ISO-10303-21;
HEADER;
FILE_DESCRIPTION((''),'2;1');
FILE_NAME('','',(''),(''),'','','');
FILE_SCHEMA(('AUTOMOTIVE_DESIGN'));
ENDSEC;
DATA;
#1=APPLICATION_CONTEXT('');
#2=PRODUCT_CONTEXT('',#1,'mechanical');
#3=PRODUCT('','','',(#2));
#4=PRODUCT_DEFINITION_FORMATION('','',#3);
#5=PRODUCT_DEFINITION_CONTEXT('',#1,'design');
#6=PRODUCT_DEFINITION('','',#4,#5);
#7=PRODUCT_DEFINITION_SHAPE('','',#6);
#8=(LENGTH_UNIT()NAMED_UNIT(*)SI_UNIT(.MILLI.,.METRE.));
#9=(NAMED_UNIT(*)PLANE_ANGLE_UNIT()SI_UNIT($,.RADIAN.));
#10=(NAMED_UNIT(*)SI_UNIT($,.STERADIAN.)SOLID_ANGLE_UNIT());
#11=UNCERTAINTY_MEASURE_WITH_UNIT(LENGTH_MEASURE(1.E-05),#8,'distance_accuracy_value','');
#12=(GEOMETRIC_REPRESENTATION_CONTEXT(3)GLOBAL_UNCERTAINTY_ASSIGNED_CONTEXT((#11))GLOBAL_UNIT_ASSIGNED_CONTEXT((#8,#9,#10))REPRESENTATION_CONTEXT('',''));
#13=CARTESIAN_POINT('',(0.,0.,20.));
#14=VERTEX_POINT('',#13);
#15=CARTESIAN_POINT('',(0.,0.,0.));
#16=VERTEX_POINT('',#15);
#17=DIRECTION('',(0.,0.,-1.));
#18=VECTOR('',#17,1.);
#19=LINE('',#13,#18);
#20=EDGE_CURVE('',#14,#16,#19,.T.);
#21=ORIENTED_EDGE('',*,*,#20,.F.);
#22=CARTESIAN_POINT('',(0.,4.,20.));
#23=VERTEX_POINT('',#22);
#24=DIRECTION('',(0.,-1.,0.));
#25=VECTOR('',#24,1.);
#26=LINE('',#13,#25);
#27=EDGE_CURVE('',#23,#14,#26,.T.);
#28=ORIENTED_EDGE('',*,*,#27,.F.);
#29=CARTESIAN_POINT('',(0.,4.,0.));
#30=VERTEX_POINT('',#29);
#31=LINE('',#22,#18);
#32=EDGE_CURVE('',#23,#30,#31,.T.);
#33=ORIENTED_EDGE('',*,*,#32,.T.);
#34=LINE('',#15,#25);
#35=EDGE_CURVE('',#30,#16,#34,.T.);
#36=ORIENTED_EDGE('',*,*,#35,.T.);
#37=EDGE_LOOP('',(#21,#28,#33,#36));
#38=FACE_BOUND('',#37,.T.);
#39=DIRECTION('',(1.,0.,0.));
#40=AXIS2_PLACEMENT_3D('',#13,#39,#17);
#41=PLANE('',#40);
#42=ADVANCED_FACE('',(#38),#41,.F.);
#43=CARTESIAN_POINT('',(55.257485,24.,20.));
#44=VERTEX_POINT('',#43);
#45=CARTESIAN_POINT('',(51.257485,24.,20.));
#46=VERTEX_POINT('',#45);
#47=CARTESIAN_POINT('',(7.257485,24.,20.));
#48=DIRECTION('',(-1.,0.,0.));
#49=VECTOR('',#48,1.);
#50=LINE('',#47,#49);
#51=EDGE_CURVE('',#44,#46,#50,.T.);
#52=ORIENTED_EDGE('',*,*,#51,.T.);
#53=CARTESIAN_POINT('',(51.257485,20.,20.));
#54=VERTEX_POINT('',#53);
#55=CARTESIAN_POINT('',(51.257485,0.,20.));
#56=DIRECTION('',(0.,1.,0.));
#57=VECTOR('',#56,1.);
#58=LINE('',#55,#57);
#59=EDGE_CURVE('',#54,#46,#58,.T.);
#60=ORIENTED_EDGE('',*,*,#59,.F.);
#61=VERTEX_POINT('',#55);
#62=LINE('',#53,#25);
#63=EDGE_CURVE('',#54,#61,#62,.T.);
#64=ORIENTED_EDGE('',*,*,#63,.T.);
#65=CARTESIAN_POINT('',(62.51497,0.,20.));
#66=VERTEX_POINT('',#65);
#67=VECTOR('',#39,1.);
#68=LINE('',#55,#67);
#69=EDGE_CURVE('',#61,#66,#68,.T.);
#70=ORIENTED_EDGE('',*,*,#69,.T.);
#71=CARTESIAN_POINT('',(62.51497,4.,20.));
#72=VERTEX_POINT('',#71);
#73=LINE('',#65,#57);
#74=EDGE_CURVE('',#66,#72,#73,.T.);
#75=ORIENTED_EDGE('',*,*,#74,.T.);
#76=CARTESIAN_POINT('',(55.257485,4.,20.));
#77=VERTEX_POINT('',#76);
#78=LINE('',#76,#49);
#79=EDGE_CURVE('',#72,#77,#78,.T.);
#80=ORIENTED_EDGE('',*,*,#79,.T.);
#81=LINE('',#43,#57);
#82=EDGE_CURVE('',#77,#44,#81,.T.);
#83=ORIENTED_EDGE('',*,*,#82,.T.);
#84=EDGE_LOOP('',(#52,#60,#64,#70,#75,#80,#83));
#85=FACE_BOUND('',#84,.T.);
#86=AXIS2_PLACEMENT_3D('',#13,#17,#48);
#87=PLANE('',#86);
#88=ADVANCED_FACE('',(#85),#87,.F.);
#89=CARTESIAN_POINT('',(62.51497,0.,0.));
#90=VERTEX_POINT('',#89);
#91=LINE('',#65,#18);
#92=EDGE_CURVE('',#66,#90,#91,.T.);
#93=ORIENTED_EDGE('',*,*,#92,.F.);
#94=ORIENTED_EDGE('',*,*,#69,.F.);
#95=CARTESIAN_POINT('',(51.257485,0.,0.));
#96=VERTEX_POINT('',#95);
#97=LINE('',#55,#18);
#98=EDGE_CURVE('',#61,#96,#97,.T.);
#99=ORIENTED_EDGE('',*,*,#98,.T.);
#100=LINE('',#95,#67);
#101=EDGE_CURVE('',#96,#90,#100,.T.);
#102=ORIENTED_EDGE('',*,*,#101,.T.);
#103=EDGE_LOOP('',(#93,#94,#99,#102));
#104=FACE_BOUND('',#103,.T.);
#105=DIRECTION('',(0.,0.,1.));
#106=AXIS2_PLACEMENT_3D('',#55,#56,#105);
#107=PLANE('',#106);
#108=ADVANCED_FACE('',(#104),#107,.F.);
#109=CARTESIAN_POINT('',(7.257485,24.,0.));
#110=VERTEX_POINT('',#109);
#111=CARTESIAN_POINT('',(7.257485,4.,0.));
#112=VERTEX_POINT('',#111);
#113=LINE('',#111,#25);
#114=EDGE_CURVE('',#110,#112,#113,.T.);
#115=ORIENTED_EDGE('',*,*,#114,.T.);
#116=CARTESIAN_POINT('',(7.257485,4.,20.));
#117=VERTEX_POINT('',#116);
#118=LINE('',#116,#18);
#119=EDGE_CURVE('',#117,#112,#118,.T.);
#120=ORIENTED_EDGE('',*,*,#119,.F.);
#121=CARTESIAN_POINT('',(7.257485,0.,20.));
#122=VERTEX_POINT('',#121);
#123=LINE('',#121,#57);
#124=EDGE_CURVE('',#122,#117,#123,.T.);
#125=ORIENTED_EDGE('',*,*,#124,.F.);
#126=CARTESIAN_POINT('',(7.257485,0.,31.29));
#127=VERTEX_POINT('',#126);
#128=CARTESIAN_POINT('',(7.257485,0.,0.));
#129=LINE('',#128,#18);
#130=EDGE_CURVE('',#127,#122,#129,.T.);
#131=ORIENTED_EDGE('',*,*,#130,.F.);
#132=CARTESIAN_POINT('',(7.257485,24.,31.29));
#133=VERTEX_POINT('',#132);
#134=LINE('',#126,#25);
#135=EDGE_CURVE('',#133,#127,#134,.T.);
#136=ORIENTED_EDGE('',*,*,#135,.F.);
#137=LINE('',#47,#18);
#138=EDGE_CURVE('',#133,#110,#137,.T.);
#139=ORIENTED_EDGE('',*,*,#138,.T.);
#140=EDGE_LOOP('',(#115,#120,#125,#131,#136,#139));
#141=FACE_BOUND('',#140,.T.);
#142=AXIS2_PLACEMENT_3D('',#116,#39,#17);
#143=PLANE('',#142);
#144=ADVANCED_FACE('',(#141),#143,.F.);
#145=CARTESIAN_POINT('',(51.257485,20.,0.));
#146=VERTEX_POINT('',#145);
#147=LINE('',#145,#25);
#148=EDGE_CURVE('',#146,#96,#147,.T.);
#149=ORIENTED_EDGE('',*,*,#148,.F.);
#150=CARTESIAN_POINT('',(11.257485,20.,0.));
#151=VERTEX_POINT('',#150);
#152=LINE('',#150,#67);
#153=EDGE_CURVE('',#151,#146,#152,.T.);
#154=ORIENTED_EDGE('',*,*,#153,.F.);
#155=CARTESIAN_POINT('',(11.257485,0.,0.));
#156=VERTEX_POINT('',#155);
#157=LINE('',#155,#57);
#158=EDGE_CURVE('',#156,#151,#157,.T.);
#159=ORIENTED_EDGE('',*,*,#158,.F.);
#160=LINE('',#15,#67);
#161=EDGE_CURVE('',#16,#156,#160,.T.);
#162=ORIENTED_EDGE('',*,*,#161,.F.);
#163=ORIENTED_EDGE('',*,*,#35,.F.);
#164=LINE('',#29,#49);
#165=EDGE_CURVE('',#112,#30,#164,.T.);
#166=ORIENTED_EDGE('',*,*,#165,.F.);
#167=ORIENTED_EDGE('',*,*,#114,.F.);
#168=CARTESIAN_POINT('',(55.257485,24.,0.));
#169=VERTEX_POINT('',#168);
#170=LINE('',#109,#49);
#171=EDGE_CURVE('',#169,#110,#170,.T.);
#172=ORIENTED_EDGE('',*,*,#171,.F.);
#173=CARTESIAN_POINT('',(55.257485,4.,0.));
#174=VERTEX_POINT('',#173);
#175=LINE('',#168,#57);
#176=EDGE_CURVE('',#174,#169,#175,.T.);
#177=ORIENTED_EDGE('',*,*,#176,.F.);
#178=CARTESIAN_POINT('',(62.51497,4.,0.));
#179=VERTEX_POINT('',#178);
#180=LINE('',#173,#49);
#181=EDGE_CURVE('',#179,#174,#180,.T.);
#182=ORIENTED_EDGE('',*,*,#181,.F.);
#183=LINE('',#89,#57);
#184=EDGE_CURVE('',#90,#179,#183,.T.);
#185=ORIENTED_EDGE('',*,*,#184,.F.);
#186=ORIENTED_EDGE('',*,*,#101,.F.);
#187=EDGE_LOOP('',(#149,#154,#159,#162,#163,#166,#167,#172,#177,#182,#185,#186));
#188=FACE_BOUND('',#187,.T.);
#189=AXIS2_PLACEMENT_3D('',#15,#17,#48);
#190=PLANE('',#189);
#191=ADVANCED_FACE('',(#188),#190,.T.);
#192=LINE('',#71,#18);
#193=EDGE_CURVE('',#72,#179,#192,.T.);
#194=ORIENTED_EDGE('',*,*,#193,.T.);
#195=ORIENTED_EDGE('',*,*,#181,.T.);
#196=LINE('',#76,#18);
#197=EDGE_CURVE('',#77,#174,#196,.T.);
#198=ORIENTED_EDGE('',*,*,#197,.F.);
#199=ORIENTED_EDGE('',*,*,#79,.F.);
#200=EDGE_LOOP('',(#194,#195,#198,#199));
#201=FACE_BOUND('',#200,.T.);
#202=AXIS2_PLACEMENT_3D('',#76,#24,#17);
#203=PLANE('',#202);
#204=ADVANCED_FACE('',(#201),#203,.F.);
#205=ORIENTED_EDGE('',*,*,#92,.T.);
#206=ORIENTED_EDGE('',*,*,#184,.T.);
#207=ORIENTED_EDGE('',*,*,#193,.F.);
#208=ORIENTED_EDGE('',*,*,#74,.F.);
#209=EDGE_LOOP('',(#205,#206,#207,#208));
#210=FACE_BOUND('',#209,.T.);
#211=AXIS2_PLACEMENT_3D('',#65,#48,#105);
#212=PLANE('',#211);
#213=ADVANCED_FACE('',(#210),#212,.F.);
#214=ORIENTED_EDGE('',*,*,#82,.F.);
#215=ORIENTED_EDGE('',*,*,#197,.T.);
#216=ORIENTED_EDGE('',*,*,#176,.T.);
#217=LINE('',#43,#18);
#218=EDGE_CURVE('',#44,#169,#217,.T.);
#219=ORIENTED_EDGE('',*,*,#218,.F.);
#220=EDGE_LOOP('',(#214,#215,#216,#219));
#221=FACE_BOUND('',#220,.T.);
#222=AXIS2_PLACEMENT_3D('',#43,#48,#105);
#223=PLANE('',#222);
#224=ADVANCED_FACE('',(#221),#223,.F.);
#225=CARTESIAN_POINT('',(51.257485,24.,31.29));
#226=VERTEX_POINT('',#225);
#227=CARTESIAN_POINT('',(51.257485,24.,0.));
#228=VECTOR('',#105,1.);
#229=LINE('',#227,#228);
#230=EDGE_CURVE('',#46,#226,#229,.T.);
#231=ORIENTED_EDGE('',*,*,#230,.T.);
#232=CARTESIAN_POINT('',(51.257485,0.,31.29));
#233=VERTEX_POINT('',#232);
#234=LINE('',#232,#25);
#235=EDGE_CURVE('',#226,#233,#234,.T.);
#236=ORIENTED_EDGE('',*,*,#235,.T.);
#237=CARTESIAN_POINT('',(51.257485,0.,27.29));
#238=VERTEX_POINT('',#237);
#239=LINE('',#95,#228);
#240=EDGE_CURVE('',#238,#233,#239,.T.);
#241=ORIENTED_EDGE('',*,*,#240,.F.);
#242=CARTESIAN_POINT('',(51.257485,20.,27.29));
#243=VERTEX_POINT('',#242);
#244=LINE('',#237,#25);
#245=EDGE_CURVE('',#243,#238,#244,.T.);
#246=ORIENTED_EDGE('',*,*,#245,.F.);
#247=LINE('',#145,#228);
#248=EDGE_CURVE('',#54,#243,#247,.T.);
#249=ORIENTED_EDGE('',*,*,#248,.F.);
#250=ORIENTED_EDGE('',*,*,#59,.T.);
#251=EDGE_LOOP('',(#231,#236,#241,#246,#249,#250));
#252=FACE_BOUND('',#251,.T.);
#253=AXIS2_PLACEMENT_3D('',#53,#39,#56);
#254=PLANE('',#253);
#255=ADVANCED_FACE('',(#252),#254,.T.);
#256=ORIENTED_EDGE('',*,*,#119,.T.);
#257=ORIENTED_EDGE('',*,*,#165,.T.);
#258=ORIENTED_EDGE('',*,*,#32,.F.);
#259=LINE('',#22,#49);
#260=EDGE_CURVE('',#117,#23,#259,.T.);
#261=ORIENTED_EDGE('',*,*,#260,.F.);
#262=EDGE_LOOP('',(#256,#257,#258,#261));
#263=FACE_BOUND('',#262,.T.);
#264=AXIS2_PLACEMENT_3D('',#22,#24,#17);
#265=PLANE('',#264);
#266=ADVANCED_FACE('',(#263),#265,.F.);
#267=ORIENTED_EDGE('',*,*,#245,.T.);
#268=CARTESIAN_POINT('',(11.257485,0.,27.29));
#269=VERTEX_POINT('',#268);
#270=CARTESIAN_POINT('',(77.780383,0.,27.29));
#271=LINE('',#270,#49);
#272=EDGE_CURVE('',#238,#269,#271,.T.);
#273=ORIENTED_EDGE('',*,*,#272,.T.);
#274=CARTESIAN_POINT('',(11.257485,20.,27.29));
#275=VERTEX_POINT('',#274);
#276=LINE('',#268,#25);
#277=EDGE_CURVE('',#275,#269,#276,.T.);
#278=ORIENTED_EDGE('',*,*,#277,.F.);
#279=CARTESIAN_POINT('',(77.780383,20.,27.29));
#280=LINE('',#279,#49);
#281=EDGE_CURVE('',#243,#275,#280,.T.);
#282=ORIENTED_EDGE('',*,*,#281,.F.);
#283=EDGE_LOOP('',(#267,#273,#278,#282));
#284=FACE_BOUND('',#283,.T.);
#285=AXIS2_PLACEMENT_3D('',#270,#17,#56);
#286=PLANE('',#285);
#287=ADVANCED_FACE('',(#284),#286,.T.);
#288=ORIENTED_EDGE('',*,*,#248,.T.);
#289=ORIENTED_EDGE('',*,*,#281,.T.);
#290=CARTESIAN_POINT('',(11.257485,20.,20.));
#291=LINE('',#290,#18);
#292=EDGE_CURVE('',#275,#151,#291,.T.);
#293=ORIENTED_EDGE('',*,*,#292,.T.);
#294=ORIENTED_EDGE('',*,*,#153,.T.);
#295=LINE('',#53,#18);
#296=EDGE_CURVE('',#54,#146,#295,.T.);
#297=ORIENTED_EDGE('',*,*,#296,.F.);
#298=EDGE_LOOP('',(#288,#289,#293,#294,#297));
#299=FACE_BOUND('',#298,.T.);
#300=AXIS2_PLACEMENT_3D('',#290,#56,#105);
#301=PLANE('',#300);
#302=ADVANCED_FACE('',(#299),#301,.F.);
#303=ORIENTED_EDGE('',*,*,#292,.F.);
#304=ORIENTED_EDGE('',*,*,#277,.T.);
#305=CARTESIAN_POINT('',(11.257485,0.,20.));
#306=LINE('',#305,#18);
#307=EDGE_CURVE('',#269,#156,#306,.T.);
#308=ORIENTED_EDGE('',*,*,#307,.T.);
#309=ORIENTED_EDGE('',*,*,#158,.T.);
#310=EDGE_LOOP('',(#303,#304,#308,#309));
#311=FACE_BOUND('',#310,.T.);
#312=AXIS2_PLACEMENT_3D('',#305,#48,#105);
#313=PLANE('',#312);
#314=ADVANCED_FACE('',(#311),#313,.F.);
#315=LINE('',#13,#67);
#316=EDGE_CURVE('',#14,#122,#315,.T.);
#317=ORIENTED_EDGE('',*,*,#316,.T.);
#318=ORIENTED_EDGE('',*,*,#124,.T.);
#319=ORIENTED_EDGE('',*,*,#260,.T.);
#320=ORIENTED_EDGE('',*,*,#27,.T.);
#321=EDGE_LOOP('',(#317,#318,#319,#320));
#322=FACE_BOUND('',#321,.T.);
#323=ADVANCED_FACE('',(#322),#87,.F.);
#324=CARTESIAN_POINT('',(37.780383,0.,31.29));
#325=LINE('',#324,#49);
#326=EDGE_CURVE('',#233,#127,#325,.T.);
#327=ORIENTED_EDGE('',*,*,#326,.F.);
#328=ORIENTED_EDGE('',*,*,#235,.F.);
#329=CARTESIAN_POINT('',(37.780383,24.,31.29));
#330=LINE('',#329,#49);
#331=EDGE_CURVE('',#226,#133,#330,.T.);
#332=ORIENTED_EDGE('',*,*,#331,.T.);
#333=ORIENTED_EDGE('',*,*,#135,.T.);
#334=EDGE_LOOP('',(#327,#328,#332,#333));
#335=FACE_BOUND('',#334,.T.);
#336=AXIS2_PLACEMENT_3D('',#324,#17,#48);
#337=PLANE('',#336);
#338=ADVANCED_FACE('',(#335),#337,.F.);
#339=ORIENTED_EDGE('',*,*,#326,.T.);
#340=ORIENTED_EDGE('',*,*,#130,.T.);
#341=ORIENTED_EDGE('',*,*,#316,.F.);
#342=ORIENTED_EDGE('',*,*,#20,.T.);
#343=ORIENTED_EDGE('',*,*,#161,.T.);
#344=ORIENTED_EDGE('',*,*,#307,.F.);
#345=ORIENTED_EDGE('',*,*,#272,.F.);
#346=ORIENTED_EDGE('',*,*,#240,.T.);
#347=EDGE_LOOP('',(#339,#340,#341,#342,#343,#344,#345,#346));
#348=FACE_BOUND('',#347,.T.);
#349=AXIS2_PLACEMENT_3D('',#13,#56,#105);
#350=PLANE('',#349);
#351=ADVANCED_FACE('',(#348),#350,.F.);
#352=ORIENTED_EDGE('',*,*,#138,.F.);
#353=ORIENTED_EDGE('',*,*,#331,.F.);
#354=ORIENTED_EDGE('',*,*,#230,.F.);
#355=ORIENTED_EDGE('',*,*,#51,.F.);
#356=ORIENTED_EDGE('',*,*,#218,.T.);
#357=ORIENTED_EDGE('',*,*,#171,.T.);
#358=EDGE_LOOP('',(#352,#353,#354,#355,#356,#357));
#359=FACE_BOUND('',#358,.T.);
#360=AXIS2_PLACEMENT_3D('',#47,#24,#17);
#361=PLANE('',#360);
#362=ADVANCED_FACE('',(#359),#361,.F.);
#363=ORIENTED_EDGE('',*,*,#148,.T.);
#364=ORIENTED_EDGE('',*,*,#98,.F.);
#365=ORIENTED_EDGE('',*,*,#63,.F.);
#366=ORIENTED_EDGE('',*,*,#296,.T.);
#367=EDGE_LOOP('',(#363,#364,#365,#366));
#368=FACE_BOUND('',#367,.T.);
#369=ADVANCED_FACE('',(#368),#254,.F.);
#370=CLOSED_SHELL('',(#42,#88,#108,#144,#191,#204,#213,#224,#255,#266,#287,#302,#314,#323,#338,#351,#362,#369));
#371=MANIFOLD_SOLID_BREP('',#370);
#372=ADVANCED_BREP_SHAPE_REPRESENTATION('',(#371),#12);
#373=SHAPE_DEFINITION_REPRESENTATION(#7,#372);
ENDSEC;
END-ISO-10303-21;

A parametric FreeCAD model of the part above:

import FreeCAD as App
import Part
import Sketcher

V = App.Vector


def add_polygon(sketch, points):
    """Adds a closed chain of lines whose ends are joined by coincident constraints."""
    first, n = sketch.GeometryCount, len(points)
    for a, b in zip(points, points[1:] + points[:1]):
        sketch.addGeometry(Part.LineSegment(App.Vector(*a, 0), App.Vector(*b, 0)), False)
    for i in range(n):
        sketch.addConstraint(Sketcher.Constraint("Coincident", first + i, 2, first + (i + 1) % n, 1))

doc = App.newDocument("Part")
params = doc.addObject("Spreadsheet::Sheet", "Params")
for row, (alias, value) in enumerate([
    ("sketch1_width", "40 mm"),
    ("sketch1_width2", "48 mm"),
    ("sketch1_height", "20 mm"),
    ("sketch1_height2", "4 mm"),
    ("pad1_length", "20 mm"),
    ("sketch2_width", "24 mm"),
    ("sketch2_height", "11.29 mm"),
    ("pad2_length", "4 mm"),
    ("sketch3_width", "4 mm"),
    ("sketch3_width2", "20 mm"),
    ("sketch3_height", "7.29 mm"),
    ("pad3_length", "44 mm"),
], start=1):
    params.set(f"A{row}", alias)
    params.set(f"B{row}", "=" + value)
    params.setAlias(f"B{row}", alias)

body = doc.addObject("PartDesign::Body", "Body")

sketch1 = body.newObject("Sketcher::SketchObject", "Sketch")
sketch1.AttachmentSupport = (doc.getObject("XY_Plane"), [""])
sketch1.MapMode = "FlatFace"
add_polygon(sketch1, [(0, 0), (11.257485, 0), (11.257485, 20), (51.257485, 20), (51.257485, 0), (62.51497, 0), (62.51497, 4), (55.257485, 4), (55.257485, 24), (7.257485, 24), (7.257485, 4), (0, 4)])
sketch1.addConstraint([
    Sketcher.Constraint("Horizontal", 0),
    Sketcher.Constraint("Vertical", 1),
    Sketcher.Constraint("Horizontal", 2),
    Sketcher.Constraint("Vertical", 3),
    Sketcher.Constraint("Horizontal", 4),
    Sketcher.Constraint("Vertical", 5),
    Sketcher.Constraint("Horizontal", 6),
    Sketcher.Constraint("Vertical", 7),
    Sketcher.Constraint("Horizontal", 8),
    Sketcher.Constraint("Vertical", 9),
    Sketcher.Constraint("Horizontal", 10),
    Sketcher.Constraint("Vertical", 11),
    Sketcher.Constraint("Coincident", 11, 2, -1, 1),
    Sketcher.Constraint("PointOnObject", 3, 2, -1),
    Sketcher.Constraint("Horizontal", 6, 2, 9, 2),
    Sketcher.Constraint("Equal", 0, 4),
    Sketcher.Constraint("Equal", 6, 10),
    Sketcher.Constraint("Equal", 3, 7),
    Sketcher.Constraint("DistanceX", 2, 1, 2, 2, 40.0),
    Sketcher.Constraint("DistanceX", 8, 2, 8, 1, 48.0),
    Sketcher.Constraint("DistanceY", 1, 1, 1, 2, 20.0),
    Sketcher.Constraint("DistanceY", 5, 1, 5, 2, 4.0),
    Sketcher.Constraint("DistanceX", 0, 1, 0, 2, 11.257485),
])
sketch1.setExpression("Constraints[30]", "Params.sketch1_width")
sketch1.setExpression("Constraints[31]", "Params.sketch1_width2")
sketch1.setExpression("Constraints[32]", "Params.sketch1_height")
sketch1.setExpression("Constraints[33]", "Params.sketch1_height2")
pad1 = body.newObject("PartDesign::Pad", "Pad")
pad1.Profile = sketch1
pad1.setExpression("Length", "Params.pad1_length")

sketch2 = body.newObject("Sketcher::SketchObject", "Sketch001")
sketch2.AttachmentSupport = (doc.getObject("YZ_Plane"), [""])
sketch2.MapMode = "FlatFace"
sketch2.AttachmentOffset = App.Placement(V(0, 0, 7.257485), App.Rotation())
add_polygon(sketch2, [(0, 20), (0, 31.29), (24, 31.29), (24, 20)])
sketch2.addConstraint([
    Sketcher.Constraint("Vertical", 0),
    Sketcher.Constraint("Horizontal", 1),
    Sketcher.Constraint("Vertical", 2),
    Sketcher.Constraint("Horizontal", 3),
    Sketcher.Constraint("PointOnObject", 0, 2, -2),
    Sketcher.Constraint("DistanceX", 1, 1, 1, 2, 24.0),
    Sketcher.Constraint("DistanceY", -1, 1, 2, 2, 20.0),
    Sketcher.Constraint("DistanceY", 0, 1, 0, 2, 11.29),
])
sketch2.setExpression("Constraints[9]", "Params.sketch2_width")
sketch2.setExpression("Constraints[11]", "Params.sketch2_height")
pad2 = body.newObject("PartDesign::Pad", "Pad001")
pad2.Profile = sketch2
pad2.setExpression("Length", "Params.pad2_length")

sketch3 = body.newObject("Sketcher::SketchObject", "Sketch002")
sketch3.AttachmentSupport = (doc.getObject("YZ_Plane"), [""])
sketch3.MapMode = "FlatFace"
sketch3.AttachmentOffset = App.Placement(V(0, 0, 7.257485), App.Rotation())
add_polygon(sketch3, [(24, 20), (20, 20), (20, 27.29), (0, 27.29), (0, 31.29), (24, 31.29)])
sketch3.addConstraint([
    Sketcher.Constraint("Horizontal", 0),
    Sketcher.Constraint("Vertical", 1),
    Sketcher.Constraint("Horizontal", 2),
    Sketcher.Constraint("Vertical", 3),
    Sketcher.Constraint("Horizontal", 4),
    Sketcher.Constraint("Vertical", 5),
    Sketcher.Constraint("PointOnObject", 2, 2, -2),
    Sketcher.Constraint("Equal", 0, 3),
    Sketcher.Constraint("DistanceX", 0, 2, 0, 1, 4.0),
    Sketcher.Constraint("DistanceX", 2, 2, 2, 1, 20.0),
    Sketcher.Constraint("DistanceY", -1, 1, 0, 2, 20.0),
    Sketcher.Constraint("DistanceY", 1, 1, 1, 2, 7.29),
])
sketch3.setExpression("Constraints[14]", "Params.sketch3_width")
sketch3.setExpression("Constraints[15]", "Params.sketch3_width2")
sketch3.setExpression("Constraints[17]", "Params.sketch3_height")
pad3 = body.newObject("PartDesign::Pad", "Pad002")
pad3.Profile = sketch3
pad3.setExpression("Length", "Params.pad3_length")

doc.recompute()
